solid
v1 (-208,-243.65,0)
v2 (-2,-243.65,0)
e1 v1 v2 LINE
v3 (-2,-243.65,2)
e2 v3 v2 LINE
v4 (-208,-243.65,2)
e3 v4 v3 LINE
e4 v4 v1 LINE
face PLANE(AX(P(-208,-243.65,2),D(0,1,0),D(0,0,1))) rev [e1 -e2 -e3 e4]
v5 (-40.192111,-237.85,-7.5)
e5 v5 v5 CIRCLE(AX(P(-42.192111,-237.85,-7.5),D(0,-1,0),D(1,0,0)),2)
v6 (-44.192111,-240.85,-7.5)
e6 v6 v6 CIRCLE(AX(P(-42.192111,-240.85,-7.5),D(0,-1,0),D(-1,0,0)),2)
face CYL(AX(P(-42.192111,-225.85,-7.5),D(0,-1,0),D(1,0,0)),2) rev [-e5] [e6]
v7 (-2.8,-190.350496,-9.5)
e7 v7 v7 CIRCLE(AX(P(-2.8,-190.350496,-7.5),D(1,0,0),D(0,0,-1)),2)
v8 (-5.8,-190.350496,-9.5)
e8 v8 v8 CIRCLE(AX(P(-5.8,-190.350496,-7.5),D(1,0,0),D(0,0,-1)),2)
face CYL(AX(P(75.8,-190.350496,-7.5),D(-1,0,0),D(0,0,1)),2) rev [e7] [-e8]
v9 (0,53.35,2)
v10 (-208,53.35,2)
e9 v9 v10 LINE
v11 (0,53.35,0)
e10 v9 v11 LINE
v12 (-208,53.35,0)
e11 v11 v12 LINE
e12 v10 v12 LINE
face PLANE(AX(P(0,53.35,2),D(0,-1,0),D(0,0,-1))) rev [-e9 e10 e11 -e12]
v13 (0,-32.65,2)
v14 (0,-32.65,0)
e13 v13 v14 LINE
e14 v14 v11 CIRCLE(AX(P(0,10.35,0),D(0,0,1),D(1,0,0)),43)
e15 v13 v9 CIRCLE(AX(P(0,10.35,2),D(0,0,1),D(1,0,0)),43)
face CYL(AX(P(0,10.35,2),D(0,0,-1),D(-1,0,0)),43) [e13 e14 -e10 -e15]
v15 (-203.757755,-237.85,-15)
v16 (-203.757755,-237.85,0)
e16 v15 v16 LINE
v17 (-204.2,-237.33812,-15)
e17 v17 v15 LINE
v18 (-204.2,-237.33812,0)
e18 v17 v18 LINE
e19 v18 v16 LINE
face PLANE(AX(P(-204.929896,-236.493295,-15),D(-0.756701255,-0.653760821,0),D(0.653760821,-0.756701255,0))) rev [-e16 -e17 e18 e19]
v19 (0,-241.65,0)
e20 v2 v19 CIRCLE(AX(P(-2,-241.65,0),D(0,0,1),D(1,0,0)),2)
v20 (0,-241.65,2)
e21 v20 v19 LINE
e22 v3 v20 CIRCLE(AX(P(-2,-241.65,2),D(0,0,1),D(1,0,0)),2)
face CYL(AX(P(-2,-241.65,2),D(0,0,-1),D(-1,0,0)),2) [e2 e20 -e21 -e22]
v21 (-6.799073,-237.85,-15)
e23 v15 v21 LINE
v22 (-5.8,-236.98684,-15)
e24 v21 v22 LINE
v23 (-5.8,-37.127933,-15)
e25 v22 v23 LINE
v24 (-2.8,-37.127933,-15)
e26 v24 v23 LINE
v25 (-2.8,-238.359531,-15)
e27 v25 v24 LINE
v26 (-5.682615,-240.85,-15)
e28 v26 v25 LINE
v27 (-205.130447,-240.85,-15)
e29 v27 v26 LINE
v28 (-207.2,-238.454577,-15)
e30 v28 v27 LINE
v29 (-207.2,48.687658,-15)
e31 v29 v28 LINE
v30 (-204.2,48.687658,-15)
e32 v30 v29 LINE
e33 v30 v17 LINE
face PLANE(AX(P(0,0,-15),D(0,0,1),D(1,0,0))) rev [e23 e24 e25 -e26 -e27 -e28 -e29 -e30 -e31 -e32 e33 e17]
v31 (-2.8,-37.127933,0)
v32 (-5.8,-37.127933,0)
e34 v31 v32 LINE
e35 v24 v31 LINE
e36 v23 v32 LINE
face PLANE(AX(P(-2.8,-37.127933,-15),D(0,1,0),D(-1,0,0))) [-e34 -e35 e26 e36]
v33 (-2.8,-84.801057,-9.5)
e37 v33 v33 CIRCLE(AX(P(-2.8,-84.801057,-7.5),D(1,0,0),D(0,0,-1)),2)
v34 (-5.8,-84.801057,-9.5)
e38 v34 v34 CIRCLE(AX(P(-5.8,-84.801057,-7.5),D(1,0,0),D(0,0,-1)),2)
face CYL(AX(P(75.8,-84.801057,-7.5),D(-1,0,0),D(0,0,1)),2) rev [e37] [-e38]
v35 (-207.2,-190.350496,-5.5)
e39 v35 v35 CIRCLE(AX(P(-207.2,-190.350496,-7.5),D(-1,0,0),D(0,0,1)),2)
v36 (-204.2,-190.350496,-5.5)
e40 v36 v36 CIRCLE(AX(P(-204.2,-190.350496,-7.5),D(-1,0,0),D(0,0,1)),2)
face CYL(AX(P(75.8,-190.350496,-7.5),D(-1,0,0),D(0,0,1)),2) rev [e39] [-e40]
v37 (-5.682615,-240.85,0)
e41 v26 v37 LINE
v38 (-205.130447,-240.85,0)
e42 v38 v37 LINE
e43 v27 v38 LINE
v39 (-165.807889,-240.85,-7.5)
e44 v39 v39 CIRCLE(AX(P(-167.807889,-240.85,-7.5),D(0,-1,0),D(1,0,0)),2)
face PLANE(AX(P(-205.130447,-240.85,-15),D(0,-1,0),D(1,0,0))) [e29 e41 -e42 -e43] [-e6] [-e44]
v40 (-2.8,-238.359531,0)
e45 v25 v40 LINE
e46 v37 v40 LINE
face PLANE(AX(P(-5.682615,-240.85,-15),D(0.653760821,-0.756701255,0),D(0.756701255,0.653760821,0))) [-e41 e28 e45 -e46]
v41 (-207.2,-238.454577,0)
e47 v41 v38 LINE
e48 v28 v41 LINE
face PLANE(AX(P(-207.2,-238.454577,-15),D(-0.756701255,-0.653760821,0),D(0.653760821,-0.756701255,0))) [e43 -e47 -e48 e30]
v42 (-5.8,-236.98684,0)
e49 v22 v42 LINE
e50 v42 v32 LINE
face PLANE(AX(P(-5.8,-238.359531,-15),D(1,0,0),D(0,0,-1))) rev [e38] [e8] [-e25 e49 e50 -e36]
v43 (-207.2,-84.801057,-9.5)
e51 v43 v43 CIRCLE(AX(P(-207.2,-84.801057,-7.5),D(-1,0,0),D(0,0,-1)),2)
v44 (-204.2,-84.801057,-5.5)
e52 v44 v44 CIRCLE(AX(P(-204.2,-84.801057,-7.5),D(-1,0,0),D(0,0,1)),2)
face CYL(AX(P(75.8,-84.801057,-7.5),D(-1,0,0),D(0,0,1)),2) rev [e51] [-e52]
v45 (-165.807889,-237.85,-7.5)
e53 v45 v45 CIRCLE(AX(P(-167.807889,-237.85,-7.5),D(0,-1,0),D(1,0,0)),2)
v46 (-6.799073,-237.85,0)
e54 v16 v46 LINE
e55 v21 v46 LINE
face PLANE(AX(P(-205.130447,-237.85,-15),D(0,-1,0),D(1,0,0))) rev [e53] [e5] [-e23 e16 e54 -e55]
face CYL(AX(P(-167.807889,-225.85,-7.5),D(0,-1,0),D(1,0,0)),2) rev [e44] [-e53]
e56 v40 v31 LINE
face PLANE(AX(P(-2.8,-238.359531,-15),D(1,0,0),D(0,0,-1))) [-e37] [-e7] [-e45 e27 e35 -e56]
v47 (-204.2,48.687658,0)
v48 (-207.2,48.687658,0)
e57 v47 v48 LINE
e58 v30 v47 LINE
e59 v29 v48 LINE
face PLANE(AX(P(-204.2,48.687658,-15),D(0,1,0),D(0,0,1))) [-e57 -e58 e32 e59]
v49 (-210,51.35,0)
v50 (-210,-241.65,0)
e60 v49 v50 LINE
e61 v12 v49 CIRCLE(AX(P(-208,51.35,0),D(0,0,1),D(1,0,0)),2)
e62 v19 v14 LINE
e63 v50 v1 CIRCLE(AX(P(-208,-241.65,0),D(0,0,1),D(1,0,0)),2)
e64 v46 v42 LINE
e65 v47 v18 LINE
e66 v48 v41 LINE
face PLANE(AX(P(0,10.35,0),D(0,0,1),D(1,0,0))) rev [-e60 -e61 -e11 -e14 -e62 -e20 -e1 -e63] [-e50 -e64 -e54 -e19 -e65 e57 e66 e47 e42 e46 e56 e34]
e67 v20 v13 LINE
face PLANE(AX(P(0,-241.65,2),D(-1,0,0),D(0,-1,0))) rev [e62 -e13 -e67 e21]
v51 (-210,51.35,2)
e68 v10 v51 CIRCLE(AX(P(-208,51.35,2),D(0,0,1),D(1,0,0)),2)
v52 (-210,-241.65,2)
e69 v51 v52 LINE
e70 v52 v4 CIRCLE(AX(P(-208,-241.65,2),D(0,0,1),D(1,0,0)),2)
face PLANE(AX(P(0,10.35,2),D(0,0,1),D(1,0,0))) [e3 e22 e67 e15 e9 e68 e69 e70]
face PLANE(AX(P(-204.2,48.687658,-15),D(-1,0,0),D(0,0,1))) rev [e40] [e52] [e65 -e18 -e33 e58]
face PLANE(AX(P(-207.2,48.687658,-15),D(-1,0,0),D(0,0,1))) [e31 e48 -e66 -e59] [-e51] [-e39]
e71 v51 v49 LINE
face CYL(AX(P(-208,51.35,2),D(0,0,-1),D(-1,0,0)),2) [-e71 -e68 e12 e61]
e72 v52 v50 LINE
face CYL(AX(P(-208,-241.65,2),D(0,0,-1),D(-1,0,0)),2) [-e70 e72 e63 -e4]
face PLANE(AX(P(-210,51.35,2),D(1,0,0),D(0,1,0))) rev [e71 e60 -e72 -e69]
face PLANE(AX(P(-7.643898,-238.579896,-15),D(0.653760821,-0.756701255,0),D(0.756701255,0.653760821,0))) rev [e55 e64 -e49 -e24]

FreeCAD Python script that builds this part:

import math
import FreeCAD as App
import Part
import Sketcher

V = App.Vector


def add_polygon(sketch, points):
    """Adds a closed chain of lines whose ends are joined by coincident constraints."""
    first, n = sketch.GeometryCount, len(points)
    for a, b in zip(points, points[1:] + points[:1]):
        sketch.addGeometry(Part.LineSegment(App.Vector(*a, 0), App.Vector(*b, 0)), False)
    for i in range(n):
        sketch.addConstraint(Sketcher.Constraint("Coincident", first + i, 2, first + (i + 1) % n, 1))

doc = App.newDocument("Part")
params = doc.addObject("Spreadsheet::Sheet", "Params")
for row, (alias, value) in enumerate([
    ("sketch1_radius", "2 mm"),
    ("sketch1_radius2", "43 mm"),
    ("sketch1_width", "208 mm"),
    ("sketch1_height", "293 mm"),
    ("pad1_length", "2 mm"),
    ("sketch2_width", "3 mm"),
    ("pad2_length", "15 mm"),
    ("sketch3_diameter", "4 mm"),
    ("pocket1_length", "15 mm"),
    ("sketch4_diameter", "4 mm"),
    ("pocket2_length", "283 mm"),
], start=1):
    params.set(f"A{row}", alias)
    params.set(f"B{row}", "=" + value)
    params.setAlias(f"B{row}", alias)

body = doc.addObject("PartDesign::Body", "Body")

# Sketch on XY plane
sketch1 = doc.addObject("Sketcher::SketchObject", "Sketch")
body.addObject(sketch1)
sketch1.AttachmentSupport = (doc.XY_Plane, [""])
sketch1.MapMode = "FlatFace"
sketch1.addGeometry([
    Part.LineSegment(V(0, 53.4, 0), V(-208, 53.4, 0)),  # 0
    Part.ArcOfCircle(Part.Circle(V(-208, 51.3, 0), V(0, 0, 1), 2), math.radians(90), math.radians(180)),  # 1
    Part.LineSegment(V(-210, 51.4, 0), V(-210, -241.7, 0)),  # 2
    Part.ArcOfCircle(Part.Circle(V(-208, -241.6, 0), V(0, 0, 1), 2), math.radians(-180), math.radians(-90)),  # 3
    Part.LineSegment(V(-208, -243.7, 0), V(-2, -243.7, 0)),  # 4
    Part.ArcOfCircle(Part.Circle(V(-2, -241.6, 0), V(0, 0, 1), 2), math.radians(-90), math.radians(0)),  # 5
    Part.LineSegment(V(0, -241.7, 0), V(0, -32.6, 0)),  # 6
    Part.ArcOfCircle(Part.Circle(V(0, 10.3, 0), V(0, 0, 1), 43), math.radians(-90), math.radians(90)),  # 7
], False)
sketch1.addConstraint([
    Sketcher.Constraint("Tangent", 0, 2, 1, 1),
    Sketcher.Constraint("Tangent", 1, 2, 2, 1),
    Sketcher.Constraint("Tangent", 2, 2, 3, 1),
    Sketcher.Constraint("Tangent", 3, 2, 4, 1),
    Sketcher.Constraint("Tangent", 4, 2, 5, 1),
    Sketcher.Constraint("Tangent", 5, 2, 6, 1),
    Sketcher.Constraint("Coincident", 6, 2, 7, 1),
    Sketcher.Constraint("Tangent", 7, 2, 0, 1),
    Sketcher.Constraint("Horizontal", 0),
    Sketcher.Constraint("Vertical", 2),
    Sketcher.Constraint("Horizontal", 4),
    Sketcher.Constraint("Vertical", 6),
    Sketcher.Constraint("Equal", 1, 3),
    Sketcher.Constraint("Equal", 3, 5),
    Sketcher.Constraint("PointOnObject", 7, 3, -2),
    Sketcher.Constraint("PointOnObject", 5, 2, -2),
    Sketcher.Constraint("Radius", 1, 2.0),
    Sketcher.Constraint("Radius", 7, 43.0),
    Sketcher.Constraint("DistanceX", 0, 2, 0, 1, 208.0),
    Sketcher.Constraint("DistanceY", 2, 2, 2, 1, 293.0),
    Sketcher.Constraint("DistanceY", -1, 1, 1, 3, 51.35),
])
sketch1.setExpression("Constraints[16]", "Params.sketch1_radius")
sketch1.setExpression("Constraints[17]", "Params.sketch1_radius2")
sketch1.setExpression("Constraints[18]", "Params.sketch1_width")
sketch1.setExpression("Constraints[19]", "Params.sketch1_height")
pad1 = doc.addObject("PartDesign::Pad", "Pad")
body.addObject(pad1)
pad1.Profile = sketch1
pad1.setExpression("Length", "Params.pad1_length")

# Sketch on XY plane
sketch2 = doc.addObject("Sketcher::SketchObject", "Sketch001")
body.addObject(sketch2)
sketch2.AttachmentSupport = (doc.XY_Plane, [""])
sketch2.MapMode = "FlatFace"
add_polygon(sketch2, [(-207.2, -238.5), (-207.2, 48.7), (-204.2, 48.7), (-204.2, -237.3), (-203.8, -237.8), (-6.8, -237.8), (-5.8, -237), (-5.8, -37.1), (-2.8, -37.1), (-2.8, -238.4), (-5.7, -240.8), (-205.1, -240.8)])  # lines 0-11
sketch2.addConstraint([
    Sketcher.Constraint("Vertical", 0),
    Sketcher.Constraint("Horizontal", 1),
    Sketcher.Constraint("Vertical", 2),
    Sketcher.Constraint("Horizontal", 4),
    Sketcher.Constraint("Vertical", 6),
    Sketcher.Constraint("Horizontal", 7),
    Sketcher.Constraint("Vertical", 8),
    Sketcher.Constraint("Horizontal", 10),
    Sketcher.Constraint("Perpendicular", 3, 5),
    Sketcher.Constraint("Parallel", 5, 9),
    Sketcher.Constraint("Perpendicular", 9, 11),
    Sketcher.Constraint("Equal", 1, 7),
    Sketcher.Constraint("DistanceX", 1, 1, 1, 2, 3.0),
    Sketcher.Constraint("DistanceY", 9, 2, 4, 2, 3.0),
    Sketcher.Constraint("DistanceX", 0, 2, -1, 1, 207.2),
    Sketcher.Constraint("DistanceX", 5, 2, -1, 1, 5.8),
    Sketcher.Constraint("DistanceY", 3, 2, -1, 1, 237.85),
    Sketcher.Constraint("DistanceY", 8, 2, 8, 1, 201.231598),
    Sketcher.Constraint("Distance", 5, 1.3203),
    Sketcher.Constraint("DistanceX", 10, 2, 10, 1, 199.447832),
    Sketcher.Constraint("Distance", 9, 3.809449),
    Sketcher.Constraint("DistanceX", 4, 1, 4, 2, 196.958682),
    Sketcher.Constraint("DistanceY", 0, 1, 0, 2, 287.142235),
    Sketcher.Constraint("DistanceY", 2, 2, 2, 1, 286.025778),
])
sketch2.setExpression("Constraints[24]", "Params.sketch2_width")
pad2 = doc.addObject("PartDesign::Pad", "Pad001")
body.addObject(pad2)
pad2.Profile = sketch2
pad2.setExpression("Length", "Params.pad2_length")
pad2.Reversed = True

# Sketch on XZ plane
sketch3 = doc.addObject("Sketcher::SketchObject", "Sketch002")
body.addObject(sketch3)
sketch3.AttachmentSupport = (doc.XZ_Plane, [""])
sketch3.MapMode = "FlatFace"
sketch3.AttachmentOffset = App.Placement(V(0, 0, 240.85), App.Rotation())
sketch3.addGeometry([
    Part.Circle(V(-167.8, -7.5, 0), V(0, 0, 1), 2),
    Part.Circle(V(-42.2, -7.5, 0), V(0, 0, 1), 2),
], False)
sketch3.addConstraint([
    Sketcher.Constraint("Equal", 0, 1),
    Sketcher.Constraint("Horizontal", 0, 3, 1, 3),
    Sketcher.Constraint("Diameter", 0, 4.0),
    Sketcher.Constraint("DistanceY", 0, 3, -1, 1, 7.5),
    Sketcher.Constraint("DistanceX", 0, 3, -1, 1, 167.807889),
    Sketcher.Constraint("DistanceX", 1, 3, -1, 1, 42.192111),
])
sketch3.setExpression("Constraints[2]", "Params.sketch3_diameter")
pocket1 = doc.addObject("PartDesign::Pocket", "Pocket")
body.addObject(pocket1)
pocket1.Profile = sketch3
pocket1.setExpression("Length", "Params.pocket1_length")

# Sketch on YZ plane
sketch4 = doc.addObject("Sketcher::SketchObject", "Sketch003")
body.addObject(sketch4)
sketch4.AttachmentSupport = (doc.YZ_Plane, [""])
sketch4.MapMode = "FlatFace"
sketch4.AttachmentOffset = App.Placement(V(0, 0, -207.2), App.Rotation())
sketch4.addGeometry([
    Part.Circle(V(-190.4, -7.5, 0), V(0, 0, 1), 2),
    Part.Circle(V(-84.8, -7.5, 0), V(0, 0, 1), 2),
], False)
sketch4.addConstraint([
    Sketcher.Constraint("Equal", 0, 1),
    Sketcher.Constraint("Horizontal", 0, 3, 1, 3),
    Sketcher.Constraint("Diameter", 0, 4.0),
    Sketcher.Constraint("DistanceY", 0, 3, -1, 1, 7.5),
    Sketcher.Constraint("DistanceX", 0, 3, 1, 3, 105.549439),
    Sketcher.Constraint("DistanceX", 0, 3, -1, 1, 190.350496),
])
sketch4.setExpression("Constraints[2]", "Params.sketch4_diameter")
pocket2 = doc.addObject("PartDesign::Pocket", "Pocket001")
body.addObject(pocket2)
pocket2.Profile = sketch4
pocket2.setExpression("Length", "Params.pocket2_length")
pocket2.Reversed = True

doc.recompute()
